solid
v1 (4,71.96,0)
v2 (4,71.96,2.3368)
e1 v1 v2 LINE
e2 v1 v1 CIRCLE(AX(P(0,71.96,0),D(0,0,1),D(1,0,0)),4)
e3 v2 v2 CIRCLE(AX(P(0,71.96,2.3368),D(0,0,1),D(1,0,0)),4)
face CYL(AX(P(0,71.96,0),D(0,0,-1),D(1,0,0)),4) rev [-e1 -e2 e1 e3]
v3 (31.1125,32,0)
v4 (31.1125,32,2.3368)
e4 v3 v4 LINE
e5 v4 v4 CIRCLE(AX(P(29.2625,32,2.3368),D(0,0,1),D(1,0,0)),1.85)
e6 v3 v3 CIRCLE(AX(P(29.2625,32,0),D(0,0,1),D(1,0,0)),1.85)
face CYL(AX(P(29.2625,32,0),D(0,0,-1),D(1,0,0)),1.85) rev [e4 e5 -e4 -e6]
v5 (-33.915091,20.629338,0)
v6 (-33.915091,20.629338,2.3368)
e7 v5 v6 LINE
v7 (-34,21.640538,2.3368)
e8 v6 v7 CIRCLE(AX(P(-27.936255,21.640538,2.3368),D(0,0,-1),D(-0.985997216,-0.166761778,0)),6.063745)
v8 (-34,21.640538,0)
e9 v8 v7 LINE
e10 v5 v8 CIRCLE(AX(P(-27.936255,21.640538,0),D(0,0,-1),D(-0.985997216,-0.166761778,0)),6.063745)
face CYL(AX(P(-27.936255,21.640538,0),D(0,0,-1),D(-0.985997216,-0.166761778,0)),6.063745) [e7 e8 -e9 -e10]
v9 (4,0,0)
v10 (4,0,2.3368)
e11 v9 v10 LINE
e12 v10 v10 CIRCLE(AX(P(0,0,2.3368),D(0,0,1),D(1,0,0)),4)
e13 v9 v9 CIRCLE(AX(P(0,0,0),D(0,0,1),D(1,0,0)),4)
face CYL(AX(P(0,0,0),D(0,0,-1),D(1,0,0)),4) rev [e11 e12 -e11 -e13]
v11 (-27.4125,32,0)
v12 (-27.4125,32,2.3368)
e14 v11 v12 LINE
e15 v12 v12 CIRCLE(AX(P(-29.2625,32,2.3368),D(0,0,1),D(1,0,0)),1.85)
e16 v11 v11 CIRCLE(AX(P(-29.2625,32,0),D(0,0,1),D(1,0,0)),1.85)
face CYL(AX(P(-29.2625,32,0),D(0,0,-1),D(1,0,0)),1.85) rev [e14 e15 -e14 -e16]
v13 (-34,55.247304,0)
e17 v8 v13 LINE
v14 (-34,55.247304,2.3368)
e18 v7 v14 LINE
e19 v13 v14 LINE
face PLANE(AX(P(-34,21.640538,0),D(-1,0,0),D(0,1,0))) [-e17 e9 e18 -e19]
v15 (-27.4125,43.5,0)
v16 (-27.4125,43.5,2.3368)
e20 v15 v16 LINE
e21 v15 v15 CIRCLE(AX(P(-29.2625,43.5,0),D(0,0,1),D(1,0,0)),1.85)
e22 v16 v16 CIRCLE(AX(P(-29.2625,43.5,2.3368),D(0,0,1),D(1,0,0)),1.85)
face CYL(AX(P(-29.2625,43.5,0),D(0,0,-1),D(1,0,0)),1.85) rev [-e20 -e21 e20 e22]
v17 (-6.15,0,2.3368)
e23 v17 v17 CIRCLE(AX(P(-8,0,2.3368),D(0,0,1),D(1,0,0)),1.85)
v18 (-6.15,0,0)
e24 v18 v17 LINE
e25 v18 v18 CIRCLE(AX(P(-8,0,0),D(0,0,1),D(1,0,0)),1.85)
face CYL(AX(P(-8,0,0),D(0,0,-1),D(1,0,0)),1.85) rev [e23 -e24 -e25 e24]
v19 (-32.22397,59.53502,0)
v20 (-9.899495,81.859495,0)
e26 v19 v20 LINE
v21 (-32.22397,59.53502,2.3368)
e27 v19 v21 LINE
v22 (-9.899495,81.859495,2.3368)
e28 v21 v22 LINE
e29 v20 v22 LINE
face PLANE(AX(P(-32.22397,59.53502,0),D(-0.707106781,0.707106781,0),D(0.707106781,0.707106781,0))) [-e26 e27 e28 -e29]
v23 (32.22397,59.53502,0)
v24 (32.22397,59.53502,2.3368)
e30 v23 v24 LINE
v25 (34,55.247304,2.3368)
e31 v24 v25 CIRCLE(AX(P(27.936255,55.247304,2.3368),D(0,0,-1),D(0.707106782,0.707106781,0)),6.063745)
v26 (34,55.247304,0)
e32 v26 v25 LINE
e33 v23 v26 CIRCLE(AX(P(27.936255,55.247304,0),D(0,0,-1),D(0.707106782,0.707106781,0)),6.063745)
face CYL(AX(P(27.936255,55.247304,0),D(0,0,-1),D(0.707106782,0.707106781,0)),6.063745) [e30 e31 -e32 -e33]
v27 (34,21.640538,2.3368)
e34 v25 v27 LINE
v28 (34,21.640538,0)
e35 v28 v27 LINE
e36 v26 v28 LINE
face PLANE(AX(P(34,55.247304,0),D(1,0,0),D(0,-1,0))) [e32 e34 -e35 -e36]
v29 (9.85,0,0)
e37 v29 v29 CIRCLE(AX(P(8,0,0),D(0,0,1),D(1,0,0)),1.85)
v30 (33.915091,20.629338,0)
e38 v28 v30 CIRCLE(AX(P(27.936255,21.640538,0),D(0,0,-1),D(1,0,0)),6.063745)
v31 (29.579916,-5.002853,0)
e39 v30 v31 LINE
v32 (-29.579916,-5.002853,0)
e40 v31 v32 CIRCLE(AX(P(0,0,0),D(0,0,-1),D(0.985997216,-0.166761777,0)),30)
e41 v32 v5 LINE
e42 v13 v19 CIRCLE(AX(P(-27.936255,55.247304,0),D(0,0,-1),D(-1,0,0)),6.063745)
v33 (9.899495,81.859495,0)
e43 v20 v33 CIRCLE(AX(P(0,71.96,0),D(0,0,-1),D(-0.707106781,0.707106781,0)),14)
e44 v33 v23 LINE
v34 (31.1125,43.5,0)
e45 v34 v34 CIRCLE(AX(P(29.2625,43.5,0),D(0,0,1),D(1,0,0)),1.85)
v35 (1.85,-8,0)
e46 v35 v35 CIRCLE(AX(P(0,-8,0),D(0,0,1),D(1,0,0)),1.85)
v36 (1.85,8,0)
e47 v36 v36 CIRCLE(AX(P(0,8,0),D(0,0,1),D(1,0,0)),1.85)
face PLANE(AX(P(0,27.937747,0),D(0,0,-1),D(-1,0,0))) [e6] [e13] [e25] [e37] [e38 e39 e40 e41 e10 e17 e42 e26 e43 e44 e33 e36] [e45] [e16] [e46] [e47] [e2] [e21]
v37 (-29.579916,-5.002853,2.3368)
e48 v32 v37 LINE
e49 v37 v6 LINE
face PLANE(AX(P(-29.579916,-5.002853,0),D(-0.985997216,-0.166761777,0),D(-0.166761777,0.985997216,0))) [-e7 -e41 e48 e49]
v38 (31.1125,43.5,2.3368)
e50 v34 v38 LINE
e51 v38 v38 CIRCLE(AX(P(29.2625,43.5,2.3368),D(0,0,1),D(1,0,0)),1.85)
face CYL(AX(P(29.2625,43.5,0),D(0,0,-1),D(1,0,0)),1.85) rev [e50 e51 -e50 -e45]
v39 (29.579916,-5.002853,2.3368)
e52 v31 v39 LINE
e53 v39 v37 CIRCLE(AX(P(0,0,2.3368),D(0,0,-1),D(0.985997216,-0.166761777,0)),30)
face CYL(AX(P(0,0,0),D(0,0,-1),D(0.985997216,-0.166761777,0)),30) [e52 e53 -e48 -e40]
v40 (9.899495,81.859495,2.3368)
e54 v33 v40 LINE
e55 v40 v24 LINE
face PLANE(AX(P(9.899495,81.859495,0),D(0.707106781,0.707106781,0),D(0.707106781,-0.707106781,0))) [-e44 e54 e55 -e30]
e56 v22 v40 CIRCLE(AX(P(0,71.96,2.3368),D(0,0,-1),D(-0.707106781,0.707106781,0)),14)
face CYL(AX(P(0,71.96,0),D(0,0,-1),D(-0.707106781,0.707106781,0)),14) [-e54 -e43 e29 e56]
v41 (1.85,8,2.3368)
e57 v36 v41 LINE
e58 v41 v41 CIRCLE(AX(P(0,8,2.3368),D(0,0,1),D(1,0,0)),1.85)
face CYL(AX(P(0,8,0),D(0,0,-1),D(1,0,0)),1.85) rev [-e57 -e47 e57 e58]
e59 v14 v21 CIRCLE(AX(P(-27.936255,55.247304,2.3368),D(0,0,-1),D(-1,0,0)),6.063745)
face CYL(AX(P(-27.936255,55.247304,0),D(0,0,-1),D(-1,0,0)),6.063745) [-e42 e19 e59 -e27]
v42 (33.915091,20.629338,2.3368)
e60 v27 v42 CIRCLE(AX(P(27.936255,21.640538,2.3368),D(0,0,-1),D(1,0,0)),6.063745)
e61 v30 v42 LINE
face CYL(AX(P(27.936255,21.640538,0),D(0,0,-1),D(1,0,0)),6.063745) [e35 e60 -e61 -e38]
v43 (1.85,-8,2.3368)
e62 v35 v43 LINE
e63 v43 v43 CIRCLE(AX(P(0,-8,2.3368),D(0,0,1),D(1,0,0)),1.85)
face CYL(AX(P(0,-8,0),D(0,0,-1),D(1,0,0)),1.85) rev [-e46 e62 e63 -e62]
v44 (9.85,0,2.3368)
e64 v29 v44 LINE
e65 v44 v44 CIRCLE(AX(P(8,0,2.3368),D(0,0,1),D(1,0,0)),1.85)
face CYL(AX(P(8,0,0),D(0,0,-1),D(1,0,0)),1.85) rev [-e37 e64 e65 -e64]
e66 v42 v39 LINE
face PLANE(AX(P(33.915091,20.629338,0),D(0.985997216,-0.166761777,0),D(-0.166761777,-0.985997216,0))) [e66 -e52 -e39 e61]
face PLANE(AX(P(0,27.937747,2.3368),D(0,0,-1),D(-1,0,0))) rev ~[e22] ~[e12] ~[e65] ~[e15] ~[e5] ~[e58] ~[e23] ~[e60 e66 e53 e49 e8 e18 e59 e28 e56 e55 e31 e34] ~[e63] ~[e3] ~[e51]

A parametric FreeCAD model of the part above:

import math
import FreeCAD as App
import Part
import Sketcher

V = App.Vector

doc = App.newDocument("Part")
body = doc.addObject("PartDesign::Body", "Body")

# Sketch on XY plane
sketch1 = body.newObject("Sketcher::SketchObject", "Sketch")
sketch1.AttachmentSupport = (doc.getObject("XY_Plane"), [""])
sketch1.MapMode = "FlatFace"
sketch1.addGeometry([
    Part.LineSegment(V(-34, 55.2, 0), V(-34, 21.6, 0)),  # 0
    Part.ArcOfCircle(Part.Circle(V(-27.9, 21.6, 0), V(0, 0, 1), 6.1), math.radians(180), math.radians(189.6)),  # 1
    Part.LineSegment(V(-33.9, 20.6, 0), V(-29.6, -5, 0)),  # 2
    Part.ArcOfCircle(Part.Circle(V(0, 0, 0), V(0, 0, 1), 30), math.radians(-170), math.radians(-10)),  # 3
    Part.LineSegment(V(29.6, -5, 0), V(33.9, 20.6, 0)),  # 4
    Part.ArcOfCircle(Part.Circle(V(27.9, 21.6, 0), V(0, 0, 1), 6.1), math.radians(-9.6), math.radians(0)),  # 5
    Part.LineSegment(V(34, 21.6, 0), V(34, 55.2, 0)),  # 6
    Part.ArcOfCircle(Part.Circle(V(27.9, 55.2, 0), V(0, 0, 1), 6.1), math.radians(0), math.radians(45)),  # 7
    Part.LineSegment(V(32.2, 59.5, 0), V(9.9, 81.9, 0)),  # 8
    Part.ArcOfCircle(Part.Circle(V(0, 72, 0), V(0, 0, 1), 14), math.radians(45), math.radians(135)),  # 9
    Part.LineSegment(V(-9.9, 81.9, 0), V(-32.2, 59.5, 0)),  # 10
    Part.ArcOfCircle(Part.Circle(V(-27.9, 55.2, 0), V(0, 0, 1), 6.1), math.radians(135), math.radians(180)),  # 11
    Part.Circle(V(8, 0, 0), V(0, 0, 1), 1.9),  # 12
    Part.Circle(V(29.3, 32, 0), V(0, 0, 1), 1.9),  # 13
    Part.Circle(V(0, -8, 0), V(0, 0, 1), 1.9),  # 14
    Part.Circle(V(0, 0, 0), V(0, 0, 1), 4),  # 15
    Part.Circle(V(-8, 0, 0), V(0, 0, 1), 1.9),  # 16
    Part.Circle(V(0, 8, 0), V(0, 0, 1), 1.9),  # 17
    Part.Circle(V(-29.3, 32, 0), V(0, 0, 1), 1.9),  # 18
    Part.Circle(V(29.3, 43.5, 0), V(0, 0, 1), 1.9),  # 19
    Part.Circle(V(-29.3, 43.5, 0), V(0, 0, 1), 1.9),  # 20
    Part.Circle(V(0, 72, 0), V(0, 0, 1), 4),  # 21
], False)
sketch1.addConstraint([
    Sketcher.Constraint("Tangent", 0, 2, 1, 1),
    Sketcher.Constraint("Tangent", 1, 2, 2, 1),
    Sketcher.Constraint("Tangent", 2, 2, 3, 1),
    Sketcher.Constraint("Tangent", 3, 2, 4, 1),
    Sketcher.Constraint("Tangent", 4, 2, 5, 1),
    Sketcher.Constraint("Tangent", 5, 2, 6, 1),
    Sketcher.Constraint("Tangent", 6, 2, 7, 1),
    Sketcher.Constraint("Tangent", 7, 2, 8, 1),
    Sketcher.Constraint("Tangent", 8, 2, 9, 1),
    Sketcher.Constraint("Tangent", 9, 2, 10, 1),
    Sketcher.Constraint("Tangent", 10, 2, 11, 1),
    Sketcher.Constraint("Tangent", 11, 2, 0, 1),
    Sketcher.Constraint("Vertical", 0),
    Sketcher.Constraint("Vertical", 6),
    Sketcher.Constraint("Coincident", 3, 3, -1, 1),
    Sketcher.Constraint("Coincident", 15, 3, -1, 1),
    Sketcher.Constraint("Coincident", 21, 3, 9, 3),
    Sketcher.Constraint("Equal", 1, 5),
    Sketcher.Constraint("Equal", 5, 7),
    Sketcher.Constraint("Equal", 7, 11),
    Sketcher.Constraint("Equal", 12, 13),
    Sketcher.Constraint("Equal", 13, 14),
    Sketcher.Constraint("Equal", 14, 16),
    Sketcher.Constraint("Equal", 16, 17),
    Sketcher.Constraint("Equal", 17, 18),
    Sketcher.Constraint("Equal", 18, 19),
    Sketcher.Constraint("Equal", 19, 20),
    Sketcher.Constraint("Equal", 15, 21),
    Sketcher.Constraint("Symmetric", 12, 3, 16, 3, -1, 1),
    Sketcher.Constraint("Symmetric", 14, 3, 17, 3, -1, 1),
    Sketcher.Constraint("Symmetric", 1, 3, 5, 3, -2),
    Sketcher.Constraint("Symmetric", 13, 3, 18, 3, -2),
    Sketcher.Constraint("Symmetric", 19, 3, 20, 3, -2),
    Sketcher.Constraint("Symmetric", 8, 2, 9, 2, -2),
    Sketcher.Constraint("PointOnObject", 12, 3, -1),
    Sketcher.Constraint("PointOnObject", 14, 3, -2),
    Sketcher.Constraint("Perpendicular", 8, 10),
    Sketcher.Constraint("Vertical", 13, 3, 19, 3),
    Sketcher.Constraint("Diameter", 15, 8.0),
    Sketcher.Constraint("Radius", 3, 30.0),
    Sketcher.Constraint("Radius", 9, 14.0),
    Sketcher.Constraint("Diameter", 12, 3.7),
    Sketcher.Constraint("DistanceX", -1, 1, 12, 3, 8.0),
    Sketcher.Constraint("DistanceY", -1, 1, 13, 3, 32.0),
    Sketcher.Constraint("DistanceY", 14, 3, -1, 1, 8.0),
    Sketcher.Constraint("DistanceX", 0, 2, -1, 1, 34.0),
    Sketcher.Constraint("DistanceY", -1, 1, 19, 3, 43.5),
    Sketcher.Constraint("DistanceY", -1, 1, 9, 3, 71.96),
    Sketcher.Constraint("Radius", 1, 6.063745),
    Sketcher.Constraint("DistanceX", -1, 1, 13, 3, 29.2625),
    Sketcher.Constraint("DistanceY", 1, 2, 0, 2, 1.011201),
])
pad1 = body.newObject("PartDesign::Pad", "Pad")
pad1.Profile = sketch1
pad1.Length = 2.3368

doc.recompute()
